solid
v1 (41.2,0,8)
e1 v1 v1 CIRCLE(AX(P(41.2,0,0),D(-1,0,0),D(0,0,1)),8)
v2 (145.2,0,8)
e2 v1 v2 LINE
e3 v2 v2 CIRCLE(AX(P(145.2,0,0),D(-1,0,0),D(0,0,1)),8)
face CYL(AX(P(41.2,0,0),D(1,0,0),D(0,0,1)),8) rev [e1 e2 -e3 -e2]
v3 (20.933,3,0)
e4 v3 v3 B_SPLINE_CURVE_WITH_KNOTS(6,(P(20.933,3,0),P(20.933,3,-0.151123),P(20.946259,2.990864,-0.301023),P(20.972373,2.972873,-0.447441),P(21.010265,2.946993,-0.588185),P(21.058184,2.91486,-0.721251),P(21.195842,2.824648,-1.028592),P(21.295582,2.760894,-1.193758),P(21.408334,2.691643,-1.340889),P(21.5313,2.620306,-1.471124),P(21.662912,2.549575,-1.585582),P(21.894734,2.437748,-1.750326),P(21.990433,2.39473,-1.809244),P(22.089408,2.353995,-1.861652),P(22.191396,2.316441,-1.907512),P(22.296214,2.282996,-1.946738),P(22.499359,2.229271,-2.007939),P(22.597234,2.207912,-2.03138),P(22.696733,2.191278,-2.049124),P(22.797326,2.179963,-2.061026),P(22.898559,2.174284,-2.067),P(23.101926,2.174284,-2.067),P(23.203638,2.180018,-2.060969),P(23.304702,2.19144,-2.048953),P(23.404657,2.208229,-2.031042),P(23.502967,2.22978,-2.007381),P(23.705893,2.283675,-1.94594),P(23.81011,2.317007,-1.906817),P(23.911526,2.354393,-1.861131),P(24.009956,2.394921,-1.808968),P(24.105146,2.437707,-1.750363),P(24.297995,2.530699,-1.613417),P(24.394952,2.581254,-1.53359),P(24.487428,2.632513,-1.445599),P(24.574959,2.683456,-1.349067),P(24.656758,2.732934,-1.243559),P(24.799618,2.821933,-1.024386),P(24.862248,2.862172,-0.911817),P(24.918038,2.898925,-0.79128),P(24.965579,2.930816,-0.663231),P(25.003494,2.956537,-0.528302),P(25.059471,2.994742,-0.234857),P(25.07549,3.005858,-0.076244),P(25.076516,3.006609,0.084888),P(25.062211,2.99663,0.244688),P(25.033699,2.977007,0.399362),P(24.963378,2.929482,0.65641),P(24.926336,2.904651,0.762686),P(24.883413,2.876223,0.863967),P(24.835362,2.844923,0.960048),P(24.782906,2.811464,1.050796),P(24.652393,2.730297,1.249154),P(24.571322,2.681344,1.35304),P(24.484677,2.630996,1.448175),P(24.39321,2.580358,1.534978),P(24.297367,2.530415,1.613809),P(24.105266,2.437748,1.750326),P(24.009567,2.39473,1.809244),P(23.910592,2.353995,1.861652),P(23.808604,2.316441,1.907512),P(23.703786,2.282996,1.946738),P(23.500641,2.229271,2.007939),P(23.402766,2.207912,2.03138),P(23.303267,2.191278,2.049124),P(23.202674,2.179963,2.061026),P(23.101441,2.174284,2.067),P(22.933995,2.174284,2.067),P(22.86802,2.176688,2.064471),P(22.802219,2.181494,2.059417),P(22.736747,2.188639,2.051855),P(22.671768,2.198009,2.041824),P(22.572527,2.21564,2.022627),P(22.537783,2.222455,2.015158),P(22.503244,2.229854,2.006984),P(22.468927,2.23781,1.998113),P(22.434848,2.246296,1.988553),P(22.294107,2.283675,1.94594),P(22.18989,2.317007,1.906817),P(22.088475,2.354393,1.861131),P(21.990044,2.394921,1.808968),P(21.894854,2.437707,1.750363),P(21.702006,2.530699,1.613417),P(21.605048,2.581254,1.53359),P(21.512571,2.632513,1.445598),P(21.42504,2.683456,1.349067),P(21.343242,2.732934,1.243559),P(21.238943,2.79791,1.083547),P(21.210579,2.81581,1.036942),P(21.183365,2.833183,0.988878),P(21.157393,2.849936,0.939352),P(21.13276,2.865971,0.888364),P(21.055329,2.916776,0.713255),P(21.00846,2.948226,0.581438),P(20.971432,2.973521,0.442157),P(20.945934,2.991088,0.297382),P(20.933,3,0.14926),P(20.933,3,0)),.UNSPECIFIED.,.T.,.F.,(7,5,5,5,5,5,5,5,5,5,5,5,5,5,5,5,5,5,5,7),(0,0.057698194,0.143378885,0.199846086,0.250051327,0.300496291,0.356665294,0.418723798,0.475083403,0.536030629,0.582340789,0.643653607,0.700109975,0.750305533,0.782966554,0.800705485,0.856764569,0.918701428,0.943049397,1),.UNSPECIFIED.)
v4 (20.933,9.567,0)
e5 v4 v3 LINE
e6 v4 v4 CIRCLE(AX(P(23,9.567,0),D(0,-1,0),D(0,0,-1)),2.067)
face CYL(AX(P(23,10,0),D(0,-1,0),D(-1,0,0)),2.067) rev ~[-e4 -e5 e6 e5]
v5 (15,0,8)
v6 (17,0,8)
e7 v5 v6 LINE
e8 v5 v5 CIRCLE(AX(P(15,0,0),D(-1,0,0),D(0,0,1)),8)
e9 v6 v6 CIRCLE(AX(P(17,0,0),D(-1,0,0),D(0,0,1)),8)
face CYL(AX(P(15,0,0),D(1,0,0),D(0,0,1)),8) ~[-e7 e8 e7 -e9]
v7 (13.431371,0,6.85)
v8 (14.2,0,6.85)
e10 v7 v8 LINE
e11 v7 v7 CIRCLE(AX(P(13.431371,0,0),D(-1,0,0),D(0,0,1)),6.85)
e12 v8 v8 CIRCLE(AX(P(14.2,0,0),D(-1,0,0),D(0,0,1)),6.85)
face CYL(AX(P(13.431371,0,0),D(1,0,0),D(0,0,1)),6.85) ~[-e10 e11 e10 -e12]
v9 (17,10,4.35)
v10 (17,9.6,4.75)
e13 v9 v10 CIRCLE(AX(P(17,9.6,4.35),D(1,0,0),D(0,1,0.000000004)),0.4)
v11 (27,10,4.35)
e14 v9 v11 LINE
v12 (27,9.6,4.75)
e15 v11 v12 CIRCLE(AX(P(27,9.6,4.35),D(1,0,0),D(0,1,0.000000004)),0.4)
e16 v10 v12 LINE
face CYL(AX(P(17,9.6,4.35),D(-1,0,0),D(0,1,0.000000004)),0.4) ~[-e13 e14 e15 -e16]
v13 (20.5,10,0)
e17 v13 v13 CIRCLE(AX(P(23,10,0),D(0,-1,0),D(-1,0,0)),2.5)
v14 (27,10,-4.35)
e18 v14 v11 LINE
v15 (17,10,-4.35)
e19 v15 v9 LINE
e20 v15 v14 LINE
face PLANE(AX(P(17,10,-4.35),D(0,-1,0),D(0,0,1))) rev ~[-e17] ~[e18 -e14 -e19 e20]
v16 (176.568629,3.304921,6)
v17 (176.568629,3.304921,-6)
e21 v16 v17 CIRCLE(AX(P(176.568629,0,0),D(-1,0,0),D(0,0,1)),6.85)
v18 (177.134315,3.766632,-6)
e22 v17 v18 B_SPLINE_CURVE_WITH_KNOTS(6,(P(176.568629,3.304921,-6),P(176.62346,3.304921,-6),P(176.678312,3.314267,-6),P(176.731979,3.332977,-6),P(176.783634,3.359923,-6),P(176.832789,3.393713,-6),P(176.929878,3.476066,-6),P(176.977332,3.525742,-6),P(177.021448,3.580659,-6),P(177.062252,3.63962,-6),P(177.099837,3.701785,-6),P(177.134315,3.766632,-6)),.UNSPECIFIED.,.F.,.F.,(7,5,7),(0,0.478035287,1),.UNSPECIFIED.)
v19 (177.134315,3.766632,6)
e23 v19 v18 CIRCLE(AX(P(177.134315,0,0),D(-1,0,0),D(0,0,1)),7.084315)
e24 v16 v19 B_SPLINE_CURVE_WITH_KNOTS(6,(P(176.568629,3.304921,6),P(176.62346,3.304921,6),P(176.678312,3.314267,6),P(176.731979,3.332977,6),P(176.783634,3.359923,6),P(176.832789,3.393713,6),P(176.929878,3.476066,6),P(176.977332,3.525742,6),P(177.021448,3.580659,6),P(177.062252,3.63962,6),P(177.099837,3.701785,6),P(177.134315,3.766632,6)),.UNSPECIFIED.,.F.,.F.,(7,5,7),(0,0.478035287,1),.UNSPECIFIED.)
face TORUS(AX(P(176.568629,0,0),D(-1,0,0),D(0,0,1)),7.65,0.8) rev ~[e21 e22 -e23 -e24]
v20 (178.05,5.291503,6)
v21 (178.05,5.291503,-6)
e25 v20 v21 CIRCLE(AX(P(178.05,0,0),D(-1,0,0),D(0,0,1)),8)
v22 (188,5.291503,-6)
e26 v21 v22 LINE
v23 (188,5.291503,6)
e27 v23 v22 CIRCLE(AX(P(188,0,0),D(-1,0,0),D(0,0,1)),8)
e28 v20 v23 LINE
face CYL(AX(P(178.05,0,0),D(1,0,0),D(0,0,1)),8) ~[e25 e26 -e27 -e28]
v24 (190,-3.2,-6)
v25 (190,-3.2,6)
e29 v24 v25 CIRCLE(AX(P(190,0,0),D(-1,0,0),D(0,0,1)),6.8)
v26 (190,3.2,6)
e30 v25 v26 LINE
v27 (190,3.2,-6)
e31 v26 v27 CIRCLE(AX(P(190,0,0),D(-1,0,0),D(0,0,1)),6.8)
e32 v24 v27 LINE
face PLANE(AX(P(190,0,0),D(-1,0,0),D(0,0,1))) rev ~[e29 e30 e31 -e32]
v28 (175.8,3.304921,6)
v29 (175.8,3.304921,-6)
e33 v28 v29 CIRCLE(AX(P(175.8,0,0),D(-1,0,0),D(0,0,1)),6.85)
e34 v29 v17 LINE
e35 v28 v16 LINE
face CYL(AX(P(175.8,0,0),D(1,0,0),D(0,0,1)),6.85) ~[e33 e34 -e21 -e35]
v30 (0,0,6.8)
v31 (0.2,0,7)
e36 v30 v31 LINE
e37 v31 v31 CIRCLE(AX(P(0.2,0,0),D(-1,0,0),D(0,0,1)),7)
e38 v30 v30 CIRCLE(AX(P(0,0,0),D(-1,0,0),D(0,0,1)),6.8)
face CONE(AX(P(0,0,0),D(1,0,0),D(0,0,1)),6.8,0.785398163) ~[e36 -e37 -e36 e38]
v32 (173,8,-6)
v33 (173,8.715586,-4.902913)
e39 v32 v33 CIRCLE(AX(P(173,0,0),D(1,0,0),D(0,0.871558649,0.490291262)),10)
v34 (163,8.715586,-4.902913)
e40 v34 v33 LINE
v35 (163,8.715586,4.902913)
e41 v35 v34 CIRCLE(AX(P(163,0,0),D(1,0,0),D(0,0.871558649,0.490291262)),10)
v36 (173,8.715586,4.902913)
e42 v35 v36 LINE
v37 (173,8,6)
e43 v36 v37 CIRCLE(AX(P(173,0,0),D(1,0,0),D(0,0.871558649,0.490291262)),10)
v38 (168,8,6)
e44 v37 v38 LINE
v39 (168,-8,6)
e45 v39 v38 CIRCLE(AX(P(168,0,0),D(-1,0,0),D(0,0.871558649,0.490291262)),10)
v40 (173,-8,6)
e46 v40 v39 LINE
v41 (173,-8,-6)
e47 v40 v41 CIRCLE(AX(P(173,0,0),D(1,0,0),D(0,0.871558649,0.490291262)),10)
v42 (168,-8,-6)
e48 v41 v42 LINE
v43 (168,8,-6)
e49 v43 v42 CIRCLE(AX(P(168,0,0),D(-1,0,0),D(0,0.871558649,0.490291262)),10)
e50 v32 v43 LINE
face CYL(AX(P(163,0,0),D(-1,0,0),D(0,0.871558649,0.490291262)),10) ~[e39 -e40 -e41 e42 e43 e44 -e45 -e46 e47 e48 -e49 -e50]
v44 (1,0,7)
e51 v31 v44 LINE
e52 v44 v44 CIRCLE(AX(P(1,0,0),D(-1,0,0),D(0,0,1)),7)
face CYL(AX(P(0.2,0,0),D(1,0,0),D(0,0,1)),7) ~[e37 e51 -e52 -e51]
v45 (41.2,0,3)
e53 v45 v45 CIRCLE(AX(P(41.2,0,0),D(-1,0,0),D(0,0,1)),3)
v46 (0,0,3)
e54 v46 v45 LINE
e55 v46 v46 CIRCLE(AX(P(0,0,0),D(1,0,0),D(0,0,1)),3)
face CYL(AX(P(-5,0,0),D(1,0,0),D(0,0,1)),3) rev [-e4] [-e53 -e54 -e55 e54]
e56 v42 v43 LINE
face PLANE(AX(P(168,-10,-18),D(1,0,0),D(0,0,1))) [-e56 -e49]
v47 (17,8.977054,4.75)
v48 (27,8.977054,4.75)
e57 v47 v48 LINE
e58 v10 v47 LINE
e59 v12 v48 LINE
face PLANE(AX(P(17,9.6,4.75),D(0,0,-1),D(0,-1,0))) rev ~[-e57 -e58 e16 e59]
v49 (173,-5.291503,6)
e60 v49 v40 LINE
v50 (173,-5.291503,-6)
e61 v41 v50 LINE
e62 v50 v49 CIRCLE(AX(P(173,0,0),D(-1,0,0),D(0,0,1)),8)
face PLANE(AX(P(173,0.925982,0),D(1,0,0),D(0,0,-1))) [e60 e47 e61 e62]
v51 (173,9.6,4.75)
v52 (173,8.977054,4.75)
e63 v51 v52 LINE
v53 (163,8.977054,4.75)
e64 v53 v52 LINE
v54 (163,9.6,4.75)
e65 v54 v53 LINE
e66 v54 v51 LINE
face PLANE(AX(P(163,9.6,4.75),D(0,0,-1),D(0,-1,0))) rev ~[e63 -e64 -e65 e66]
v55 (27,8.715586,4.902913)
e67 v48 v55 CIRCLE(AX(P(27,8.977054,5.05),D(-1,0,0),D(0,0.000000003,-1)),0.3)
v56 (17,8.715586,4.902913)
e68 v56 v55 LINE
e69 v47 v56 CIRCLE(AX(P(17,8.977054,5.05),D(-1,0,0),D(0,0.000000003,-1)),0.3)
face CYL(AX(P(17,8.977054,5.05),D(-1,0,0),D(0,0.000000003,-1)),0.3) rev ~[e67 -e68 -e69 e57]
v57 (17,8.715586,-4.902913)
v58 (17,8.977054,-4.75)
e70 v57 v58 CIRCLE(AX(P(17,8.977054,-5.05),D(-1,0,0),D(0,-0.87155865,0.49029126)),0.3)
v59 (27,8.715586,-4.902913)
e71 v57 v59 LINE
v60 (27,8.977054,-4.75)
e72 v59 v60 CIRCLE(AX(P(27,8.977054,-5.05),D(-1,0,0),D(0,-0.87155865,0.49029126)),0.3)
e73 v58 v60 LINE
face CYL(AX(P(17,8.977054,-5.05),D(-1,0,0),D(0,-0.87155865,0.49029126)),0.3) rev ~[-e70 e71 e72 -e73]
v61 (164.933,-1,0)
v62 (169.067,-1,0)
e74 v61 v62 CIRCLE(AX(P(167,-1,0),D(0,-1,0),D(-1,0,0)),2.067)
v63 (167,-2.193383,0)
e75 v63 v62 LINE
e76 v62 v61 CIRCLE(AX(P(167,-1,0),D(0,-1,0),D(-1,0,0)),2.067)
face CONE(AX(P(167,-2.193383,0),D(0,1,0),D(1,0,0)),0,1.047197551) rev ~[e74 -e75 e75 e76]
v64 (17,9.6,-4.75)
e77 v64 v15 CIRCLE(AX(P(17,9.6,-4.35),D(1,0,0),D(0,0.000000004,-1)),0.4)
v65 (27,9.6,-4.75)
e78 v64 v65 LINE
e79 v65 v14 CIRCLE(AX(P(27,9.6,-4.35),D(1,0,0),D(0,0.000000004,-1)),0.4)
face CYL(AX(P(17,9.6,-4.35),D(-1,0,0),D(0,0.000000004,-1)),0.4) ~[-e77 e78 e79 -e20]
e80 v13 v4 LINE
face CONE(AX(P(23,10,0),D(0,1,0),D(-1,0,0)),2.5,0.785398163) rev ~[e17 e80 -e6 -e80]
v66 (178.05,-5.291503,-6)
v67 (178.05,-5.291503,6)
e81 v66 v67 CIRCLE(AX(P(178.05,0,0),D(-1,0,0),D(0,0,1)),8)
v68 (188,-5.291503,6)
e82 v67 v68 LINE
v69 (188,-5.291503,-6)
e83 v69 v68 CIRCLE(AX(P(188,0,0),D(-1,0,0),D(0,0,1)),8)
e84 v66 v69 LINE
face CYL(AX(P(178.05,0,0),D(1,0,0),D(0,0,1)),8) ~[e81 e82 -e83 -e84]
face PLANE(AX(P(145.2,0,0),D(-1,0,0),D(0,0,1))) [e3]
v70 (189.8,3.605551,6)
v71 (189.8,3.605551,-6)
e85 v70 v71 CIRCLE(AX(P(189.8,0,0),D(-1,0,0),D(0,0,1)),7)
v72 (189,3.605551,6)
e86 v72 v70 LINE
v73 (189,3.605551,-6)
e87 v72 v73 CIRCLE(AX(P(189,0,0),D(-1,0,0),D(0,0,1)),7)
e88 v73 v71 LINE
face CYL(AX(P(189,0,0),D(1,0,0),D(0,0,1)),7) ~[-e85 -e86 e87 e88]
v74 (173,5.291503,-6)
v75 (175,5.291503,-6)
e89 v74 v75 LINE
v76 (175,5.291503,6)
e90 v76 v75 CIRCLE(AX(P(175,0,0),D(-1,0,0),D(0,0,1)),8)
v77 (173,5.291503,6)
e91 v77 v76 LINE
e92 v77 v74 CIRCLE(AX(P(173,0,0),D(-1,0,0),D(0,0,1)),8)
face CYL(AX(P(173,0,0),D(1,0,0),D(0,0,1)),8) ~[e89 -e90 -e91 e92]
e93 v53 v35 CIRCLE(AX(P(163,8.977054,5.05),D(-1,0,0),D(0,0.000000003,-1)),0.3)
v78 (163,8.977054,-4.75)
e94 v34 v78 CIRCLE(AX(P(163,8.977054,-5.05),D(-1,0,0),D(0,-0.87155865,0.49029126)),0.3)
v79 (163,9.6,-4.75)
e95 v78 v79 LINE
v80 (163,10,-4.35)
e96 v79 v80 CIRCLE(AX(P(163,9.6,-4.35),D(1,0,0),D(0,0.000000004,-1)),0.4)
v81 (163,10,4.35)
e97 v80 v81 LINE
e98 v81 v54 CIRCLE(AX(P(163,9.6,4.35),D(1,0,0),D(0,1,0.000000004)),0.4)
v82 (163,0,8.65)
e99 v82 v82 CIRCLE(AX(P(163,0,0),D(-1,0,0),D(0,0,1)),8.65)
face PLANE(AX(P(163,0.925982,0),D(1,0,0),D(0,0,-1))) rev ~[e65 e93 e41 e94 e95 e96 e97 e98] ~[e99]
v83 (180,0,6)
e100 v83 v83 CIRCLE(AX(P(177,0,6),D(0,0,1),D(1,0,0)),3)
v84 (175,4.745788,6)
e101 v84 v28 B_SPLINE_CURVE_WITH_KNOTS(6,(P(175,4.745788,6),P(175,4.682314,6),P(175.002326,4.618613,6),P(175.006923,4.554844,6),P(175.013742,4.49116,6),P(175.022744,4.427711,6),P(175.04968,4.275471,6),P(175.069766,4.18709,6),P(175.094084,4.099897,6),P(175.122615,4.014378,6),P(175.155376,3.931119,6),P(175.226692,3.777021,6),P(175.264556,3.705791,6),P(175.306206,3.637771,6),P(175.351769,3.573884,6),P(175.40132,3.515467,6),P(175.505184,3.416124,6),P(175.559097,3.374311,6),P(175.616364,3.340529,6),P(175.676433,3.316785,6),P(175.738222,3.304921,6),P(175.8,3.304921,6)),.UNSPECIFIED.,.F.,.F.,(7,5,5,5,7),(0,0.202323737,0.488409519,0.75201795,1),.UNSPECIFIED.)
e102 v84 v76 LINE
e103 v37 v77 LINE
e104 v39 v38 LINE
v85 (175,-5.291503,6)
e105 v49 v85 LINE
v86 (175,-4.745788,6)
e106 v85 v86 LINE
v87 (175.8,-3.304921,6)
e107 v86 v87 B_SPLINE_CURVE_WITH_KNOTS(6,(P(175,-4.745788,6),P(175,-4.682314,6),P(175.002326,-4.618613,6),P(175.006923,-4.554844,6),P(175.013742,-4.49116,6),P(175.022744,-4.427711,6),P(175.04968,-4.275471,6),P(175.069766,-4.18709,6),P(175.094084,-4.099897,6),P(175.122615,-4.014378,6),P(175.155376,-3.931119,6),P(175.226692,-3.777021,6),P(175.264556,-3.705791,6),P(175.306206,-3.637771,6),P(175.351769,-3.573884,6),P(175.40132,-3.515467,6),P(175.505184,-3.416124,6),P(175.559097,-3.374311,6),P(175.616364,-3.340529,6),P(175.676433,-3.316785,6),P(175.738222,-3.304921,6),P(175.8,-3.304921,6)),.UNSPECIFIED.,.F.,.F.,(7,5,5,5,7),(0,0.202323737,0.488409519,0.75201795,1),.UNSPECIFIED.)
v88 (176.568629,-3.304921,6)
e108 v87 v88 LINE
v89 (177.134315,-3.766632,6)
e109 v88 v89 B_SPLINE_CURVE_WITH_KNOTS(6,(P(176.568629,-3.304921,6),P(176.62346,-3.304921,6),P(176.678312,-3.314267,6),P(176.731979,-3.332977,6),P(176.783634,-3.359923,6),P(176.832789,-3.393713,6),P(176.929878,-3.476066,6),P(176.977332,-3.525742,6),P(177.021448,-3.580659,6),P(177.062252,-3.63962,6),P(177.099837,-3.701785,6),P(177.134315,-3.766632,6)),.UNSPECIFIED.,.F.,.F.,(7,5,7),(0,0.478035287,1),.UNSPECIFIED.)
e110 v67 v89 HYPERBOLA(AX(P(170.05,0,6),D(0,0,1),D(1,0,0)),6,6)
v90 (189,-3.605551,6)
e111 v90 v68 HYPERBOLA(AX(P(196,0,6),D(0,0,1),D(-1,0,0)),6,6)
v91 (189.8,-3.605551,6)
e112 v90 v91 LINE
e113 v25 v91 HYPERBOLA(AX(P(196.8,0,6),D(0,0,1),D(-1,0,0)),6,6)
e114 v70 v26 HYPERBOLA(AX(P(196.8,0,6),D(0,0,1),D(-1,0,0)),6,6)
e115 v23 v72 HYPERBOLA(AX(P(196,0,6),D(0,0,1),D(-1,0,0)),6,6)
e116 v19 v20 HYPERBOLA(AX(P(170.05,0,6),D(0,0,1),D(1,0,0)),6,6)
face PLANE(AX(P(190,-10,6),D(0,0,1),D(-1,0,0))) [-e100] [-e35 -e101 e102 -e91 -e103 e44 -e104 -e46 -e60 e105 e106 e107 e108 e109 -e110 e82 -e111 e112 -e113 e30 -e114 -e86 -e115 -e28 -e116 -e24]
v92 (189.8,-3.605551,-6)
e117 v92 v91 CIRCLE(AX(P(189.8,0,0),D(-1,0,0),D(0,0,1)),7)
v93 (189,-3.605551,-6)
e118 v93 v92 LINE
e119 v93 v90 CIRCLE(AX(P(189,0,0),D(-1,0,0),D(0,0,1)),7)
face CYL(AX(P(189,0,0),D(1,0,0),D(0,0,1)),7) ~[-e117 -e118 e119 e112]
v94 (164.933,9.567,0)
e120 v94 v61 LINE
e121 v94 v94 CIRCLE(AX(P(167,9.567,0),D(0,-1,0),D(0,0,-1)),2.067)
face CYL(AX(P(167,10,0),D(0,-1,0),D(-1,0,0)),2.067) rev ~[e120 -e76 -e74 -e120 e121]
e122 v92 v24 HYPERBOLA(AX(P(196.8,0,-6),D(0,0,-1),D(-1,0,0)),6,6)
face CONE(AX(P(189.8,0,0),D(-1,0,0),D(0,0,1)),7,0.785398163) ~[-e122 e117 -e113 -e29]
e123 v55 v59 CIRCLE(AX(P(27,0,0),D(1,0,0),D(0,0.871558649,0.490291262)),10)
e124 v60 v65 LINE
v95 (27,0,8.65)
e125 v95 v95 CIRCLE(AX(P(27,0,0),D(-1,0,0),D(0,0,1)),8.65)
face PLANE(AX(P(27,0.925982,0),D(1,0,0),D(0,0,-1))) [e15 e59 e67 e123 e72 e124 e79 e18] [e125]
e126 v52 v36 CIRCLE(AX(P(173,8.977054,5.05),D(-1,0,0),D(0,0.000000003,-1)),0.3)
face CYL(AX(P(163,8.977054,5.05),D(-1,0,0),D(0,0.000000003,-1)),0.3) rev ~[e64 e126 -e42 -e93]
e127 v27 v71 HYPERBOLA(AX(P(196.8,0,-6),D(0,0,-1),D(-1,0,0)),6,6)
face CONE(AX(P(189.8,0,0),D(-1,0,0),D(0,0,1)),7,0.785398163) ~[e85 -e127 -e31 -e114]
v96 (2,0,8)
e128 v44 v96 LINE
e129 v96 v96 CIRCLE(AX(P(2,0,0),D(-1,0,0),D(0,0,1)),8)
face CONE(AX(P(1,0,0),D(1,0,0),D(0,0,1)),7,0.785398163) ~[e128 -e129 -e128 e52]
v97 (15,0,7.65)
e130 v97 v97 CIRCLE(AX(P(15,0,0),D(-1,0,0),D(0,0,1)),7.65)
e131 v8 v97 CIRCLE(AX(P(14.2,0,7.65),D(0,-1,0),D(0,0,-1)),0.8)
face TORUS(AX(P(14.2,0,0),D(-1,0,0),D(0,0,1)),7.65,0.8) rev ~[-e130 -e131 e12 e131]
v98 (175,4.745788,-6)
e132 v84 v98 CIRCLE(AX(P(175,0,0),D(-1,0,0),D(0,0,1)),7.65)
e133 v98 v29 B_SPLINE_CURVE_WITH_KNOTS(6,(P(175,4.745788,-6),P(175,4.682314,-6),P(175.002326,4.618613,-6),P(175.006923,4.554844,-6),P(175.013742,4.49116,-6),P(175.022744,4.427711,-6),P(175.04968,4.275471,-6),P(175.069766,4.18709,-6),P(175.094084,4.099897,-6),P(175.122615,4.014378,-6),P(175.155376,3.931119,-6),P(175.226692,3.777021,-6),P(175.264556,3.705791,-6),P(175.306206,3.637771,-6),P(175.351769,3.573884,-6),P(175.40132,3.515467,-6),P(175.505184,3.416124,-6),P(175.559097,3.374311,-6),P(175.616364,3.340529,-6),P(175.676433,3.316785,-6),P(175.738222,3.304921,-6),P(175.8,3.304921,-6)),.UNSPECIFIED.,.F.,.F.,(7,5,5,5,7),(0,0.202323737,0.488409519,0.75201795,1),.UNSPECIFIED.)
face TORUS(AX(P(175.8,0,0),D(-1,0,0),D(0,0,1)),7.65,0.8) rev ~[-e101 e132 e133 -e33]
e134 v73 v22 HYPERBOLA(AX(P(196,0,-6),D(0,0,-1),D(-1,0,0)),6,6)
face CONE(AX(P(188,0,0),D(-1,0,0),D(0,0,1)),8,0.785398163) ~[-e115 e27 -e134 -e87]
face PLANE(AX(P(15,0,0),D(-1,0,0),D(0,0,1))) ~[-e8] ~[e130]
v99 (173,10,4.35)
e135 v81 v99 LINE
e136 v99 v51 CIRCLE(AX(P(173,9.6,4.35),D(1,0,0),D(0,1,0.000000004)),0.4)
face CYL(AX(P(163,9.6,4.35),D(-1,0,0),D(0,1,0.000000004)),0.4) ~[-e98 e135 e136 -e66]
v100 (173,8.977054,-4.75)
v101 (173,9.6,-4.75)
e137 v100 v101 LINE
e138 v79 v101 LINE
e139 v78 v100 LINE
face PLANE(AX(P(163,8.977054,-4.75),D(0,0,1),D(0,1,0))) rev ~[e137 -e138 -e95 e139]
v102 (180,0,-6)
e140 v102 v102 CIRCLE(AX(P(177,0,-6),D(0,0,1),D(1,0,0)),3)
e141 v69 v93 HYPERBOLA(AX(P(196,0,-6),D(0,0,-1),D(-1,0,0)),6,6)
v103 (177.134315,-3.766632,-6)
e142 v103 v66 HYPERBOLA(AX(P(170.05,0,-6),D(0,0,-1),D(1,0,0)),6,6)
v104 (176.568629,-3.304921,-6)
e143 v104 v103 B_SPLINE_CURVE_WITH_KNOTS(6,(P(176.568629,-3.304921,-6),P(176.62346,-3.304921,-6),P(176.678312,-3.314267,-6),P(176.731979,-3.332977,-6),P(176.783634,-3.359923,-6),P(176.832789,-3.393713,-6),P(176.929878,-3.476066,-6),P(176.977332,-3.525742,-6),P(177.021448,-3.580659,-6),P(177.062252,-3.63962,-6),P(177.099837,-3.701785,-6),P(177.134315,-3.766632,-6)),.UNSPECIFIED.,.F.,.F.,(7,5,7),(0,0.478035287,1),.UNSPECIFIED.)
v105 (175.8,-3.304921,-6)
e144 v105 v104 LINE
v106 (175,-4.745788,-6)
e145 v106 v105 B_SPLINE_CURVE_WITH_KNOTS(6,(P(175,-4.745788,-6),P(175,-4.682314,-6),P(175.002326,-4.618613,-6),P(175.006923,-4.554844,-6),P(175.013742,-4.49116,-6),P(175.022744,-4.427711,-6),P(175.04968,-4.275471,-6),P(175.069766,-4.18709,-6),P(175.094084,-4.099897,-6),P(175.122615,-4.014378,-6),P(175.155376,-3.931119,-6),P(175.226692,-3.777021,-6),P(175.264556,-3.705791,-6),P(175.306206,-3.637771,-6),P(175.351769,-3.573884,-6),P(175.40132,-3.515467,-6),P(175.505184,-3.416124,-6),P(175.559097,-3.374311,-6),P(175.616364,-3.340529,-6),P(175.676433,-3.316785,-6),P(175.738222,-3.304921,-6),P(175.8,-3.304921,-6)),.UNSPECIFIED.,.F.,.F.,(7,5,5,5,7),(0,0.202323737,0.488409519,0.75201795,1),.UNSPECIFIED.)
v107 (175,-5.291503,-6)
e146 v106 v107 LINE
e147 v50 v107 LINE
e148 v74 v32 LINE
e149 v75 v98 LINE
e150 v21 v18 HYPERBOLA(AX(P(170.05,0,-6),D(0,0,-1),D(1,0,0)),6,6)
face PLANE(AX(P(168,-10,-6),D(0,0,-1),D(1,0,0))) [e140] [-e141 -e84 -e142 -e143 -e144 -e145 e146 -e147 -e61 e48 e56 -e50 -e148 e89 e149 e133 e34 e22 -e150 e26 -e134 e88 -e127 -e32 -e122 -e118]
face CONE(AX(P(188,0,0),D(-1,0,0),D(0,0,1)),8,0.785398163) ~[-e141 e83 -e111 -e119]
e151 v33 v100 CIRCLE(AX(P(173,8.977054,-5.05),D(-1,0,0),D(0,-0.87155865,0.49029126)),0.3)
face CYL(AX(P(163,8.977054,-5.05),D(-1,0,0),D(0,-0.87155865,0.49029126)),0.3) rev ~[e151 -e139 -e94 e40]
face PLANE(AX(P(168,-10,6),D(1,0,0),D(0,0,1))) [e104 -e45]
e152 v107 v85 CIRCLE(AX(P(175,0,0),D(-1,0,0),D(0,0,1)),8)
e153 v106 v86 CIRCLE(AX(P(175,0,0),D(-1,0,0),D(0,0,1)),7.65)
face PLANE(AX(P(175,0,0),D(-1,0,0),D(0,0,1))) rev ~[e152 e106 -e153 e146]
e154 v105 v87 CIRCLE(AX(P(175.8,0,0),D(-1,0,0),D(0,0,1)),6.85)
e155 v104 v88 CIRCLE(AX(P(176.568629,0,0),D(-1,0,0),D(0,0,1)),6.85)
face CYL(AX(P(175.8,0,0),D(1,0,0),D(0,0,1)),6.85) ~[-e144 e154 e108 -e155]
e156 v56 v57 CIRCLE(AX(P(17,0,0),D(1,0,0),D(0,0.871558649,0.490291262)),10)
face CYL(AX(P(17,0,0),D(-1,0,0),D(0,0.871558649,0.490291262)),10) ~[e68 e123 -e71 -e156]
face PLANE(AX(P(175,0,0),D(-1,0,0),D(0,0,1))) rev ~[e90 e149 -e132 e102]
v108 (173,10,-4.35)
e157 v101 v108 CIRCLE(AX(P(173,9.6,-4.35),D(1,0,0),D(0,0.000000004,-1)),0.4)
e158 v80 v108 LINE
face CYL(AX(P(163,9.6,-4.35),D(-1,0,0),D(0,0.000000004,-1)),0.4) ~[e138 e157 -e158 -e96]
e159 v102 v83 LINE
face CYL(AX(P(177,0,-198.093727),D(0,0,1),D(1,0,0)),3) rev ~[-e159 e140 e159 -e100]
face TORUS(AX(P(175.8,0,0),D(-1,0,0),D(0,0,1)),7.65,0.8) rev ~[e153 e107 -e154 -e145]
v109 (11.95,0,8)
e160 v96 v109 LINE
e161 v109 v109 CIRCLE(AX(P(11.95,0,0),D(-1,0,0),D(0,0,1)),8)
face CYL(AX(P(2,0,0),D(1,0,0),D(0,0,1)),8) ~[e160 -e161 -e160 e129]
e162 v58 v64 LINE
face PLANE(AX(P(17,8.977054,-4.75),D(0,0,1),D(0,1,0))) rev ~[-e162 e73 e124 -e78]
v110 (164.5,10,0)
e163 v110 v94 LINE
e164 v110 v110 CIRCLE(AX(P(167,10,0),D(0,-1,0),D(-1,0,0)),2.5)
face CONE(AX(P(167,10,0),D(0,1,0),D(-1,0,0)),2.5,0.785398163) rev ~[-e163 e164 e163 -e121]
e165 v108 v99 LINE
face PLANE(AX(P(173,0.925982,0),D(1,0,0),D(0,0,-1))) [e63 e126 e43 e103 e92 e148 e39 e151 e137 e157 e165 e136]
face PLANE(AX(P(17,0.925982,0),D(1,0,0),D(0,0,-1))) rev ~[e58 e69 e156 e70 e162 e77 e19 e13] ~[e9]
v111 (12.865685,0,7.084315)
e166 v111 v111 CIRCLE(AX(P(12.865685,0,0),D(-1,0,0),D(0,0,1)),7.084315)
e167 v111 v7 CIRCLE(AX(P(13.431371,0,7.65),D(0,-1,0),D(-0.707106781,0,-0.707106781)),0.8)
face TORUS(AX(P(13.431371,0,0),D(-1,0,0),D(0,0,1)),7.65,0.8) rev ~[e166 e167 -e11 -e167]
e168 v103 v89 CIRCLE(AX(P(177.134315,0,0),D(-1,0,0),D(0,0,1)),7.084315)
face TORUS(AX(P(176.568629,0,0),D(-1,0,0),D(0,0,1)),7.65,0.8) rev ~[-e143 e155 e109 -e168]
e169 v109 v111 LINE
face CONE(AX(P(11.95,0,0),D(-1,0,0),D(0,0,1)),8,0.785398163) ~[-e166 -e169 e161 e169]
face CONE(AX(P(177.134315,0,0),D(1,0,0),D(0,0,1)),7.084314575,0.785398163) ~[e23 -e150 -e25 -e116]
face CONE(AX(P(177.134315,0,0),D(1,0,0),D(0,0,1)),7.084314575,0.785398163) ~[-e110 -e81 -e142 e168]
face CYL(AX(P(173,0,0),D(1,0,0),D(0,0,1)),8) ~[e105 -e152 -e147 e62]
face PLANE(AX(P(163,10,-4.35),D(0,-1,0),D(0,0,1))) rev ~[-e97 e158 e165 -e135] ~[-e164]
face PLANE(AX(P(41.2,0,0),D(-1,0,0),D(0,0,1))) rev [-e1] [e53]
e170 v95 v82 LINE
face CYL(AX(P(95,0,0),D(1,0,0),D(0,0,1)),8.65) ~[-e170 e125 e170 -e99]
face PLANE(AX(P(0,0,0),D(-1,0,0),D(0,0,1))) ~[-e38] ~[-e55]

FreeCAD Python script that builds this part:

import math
import FreeCAD as App
import Part
import Sketcher
Q = App.Units.Quantity

doc = App.newDocument("Part")
body = doc.addObject("PartDesign::Body", "Body")

sketch1 = body.newObject("Sketcher::SketchObject", "Sketch")
sketch1.AttachmentSupport = (doc.getObject("XY_Plane"), [""])
sketch1.MapMode = "FlatFace"
sketch1.addGeometry(Part.LineSegment(App.Vector(0, 6.8, 0), App.Vector(0, 0, 0)), False)
sketch1.addGeometry(Part.LineSegment(App.Vector(0, 0, 0), App.Vector(17, 0, 0)), False)
sketch1.addGeometry(Part.LineSegment(App.Vector(17, 0, 0), App.Vector(17, 8, 0)), False)
sketch1.addGeometry(Part.LineSegment(App.Vector(17, 8, 0), App.Vector(15, 8, 0)), False)
sketch1.addGeometry(Part.LineSegment(App.Vector(15, 8, 0), App.Vector(15, 7.65, 0)), False)
sketch1.addGeometry(Part.ArcOfCircle(Part.Circle(App.Vector(14.2, 7.65, 0), App.Vector(0, 0, 1), 0.8), math.radians(-90), math.radians(0)), False)
sketch1.addGeometry(Part.LineSegment(App.Vector(14.2, 6.85, 0), App.Vector(13.431371, 6.85, 0)), False)
sketch1.addGeometry(Part.ArcOfCircle(Part.Circle(App.Vector(13.431371, 7.65, 0), App.Vector(0, 0, 1), 0.8), math.radians(-135), math.radians(-90)), False)
sketch1.addGeometry(Part.LineSegment(App.Vector(12.865685, 7.084315, 0), App.Vector(11.95, 8, 0)), False)
sketch1.addGeometry(Part.LineSegment(App.Vector(11.95, 8, 0), App.Vector(2, 8, 0)), False)
sketch1.addGeometry(Part.LineSegment(App.Vector(2, 8, 0), App.Vector(1, 7, 0)), False)
sketch1.addGeometry(Part.LineSegment(App.Vector(1, 7, 0), App.Vector(0.2, 7, 0)), False)
sketch1.addGeometry(Part.LineSegment(App.Vector(0.2, 7, 0), App.Vector(0, 6.8, 0)), False)
sketch1.addConstraint(Sketcher.Constraint("Coincident", 0, 2, 1, 1))
sketch1.addConstraint(Sketcher.Constraint("Coincident", 1, 2, 2, 1))
sketch1.addConstraint(Sketcher.Constraint("Coincident", 2, 2, 3, 1))
sketch1.addConstraint(Sketcher.Constraint("Coincident", 3, 2, 4, 1))
sketch1.addConstraint(Sketcher.Constraint("Tangent", 4, 2, 5, 2))
sketch1.addConstraint(Sketcher.Constraint("Tangent", 5, 1, 6, 1))
sketch1.addConstraint(Sketcher.Constraint("Tangent", 6, 2, 7, 2))
sketch1.addConstraint(Sketcher.Constraint("Tangent", 7, 1, 8, 1))
sketch1.addConstraint(Sketcher.Constraint("Coincident", 8, 2, 9, 1))
sketch1.addConstraint(Sketcher.Constraint("Coincident", 9, 2, 10, 1))
sketch1.addConstraint(Sketcher.Constraint("Coincident", 10, 2, 11, 1))
sketch1.addConstraint(Sketcher.Constraint("Coincident", 11, 2, 12, 1))
sketch1.addConstraint(Sketcher.Constraint("Coincident", 12, 2, 0, 1))
sketch1.addConstraint(Sketcher.Constraint("Vertical", 0))
sketch1.addConstraint(Sketcher.Constraint("Horizontal", 1))
sketch1.addConstraint(Sketcher.Constraint("Vertical", 2))
sketch1.addConstraint(Sketcher.Constraint("Horizontal", 3))
sketch1.addConstraint(Sketcher.Constraint("Vertical", 4))
sketch1.addConstraint(Sketcher.Constraint("Horizontal", 6))
sketch1.addConstraint(Sketcher.Constraint("Horizontal", 9))
sketch1.addConstraint(Sketcher.Constraint("Horizontal", 11))
sketch1.addConstraint(Sketcher.Constraint("Coincident", 0, 2, -1, 1))
sketch1.addConstraint(Sketcher.Constraint("Equal", 5, 7))
sketch1.addConstraint(Sketcher.Constraint("Perpendicular", 8, 10))
sketch1.addConstraint(Sketcher.Constraint("Parallel", 10, 12))
sketch1.addConstraint(Sketcher.Constraint("Horizontal", 3, 2, 8, 2))
sketch1.addConstraint(Sketcher.Constraint("Radius", 5, 0.8))
sketch1.addConstraint(Sketcher.Constraint("DistanceX", 1, 1, 1, 2, 17.0))
sketch1.addConstraint(Sketcher.Constraint("DistanceX", 3, 2, 3, 1, 2.0))
sketch1.addConstraint(Sketcher.Constraint("DistanceY", 2, 1, 2, 2, 8.0))
sketch1.addConstraint(Sketcher.Constraint("Angle", 8, Q("135 deg")))
sketch1.addConstraint(Sketcher.Constraint("DistanceX", 11, 2, 11, 1, 0.8))
sketch1.addConstraint(Sketcher.Constraint("DistanceY", 0, 2, 0, 1, 6.8))
sketch1.addConstraint(Sketcher.Constraint("DistanceX", -1, 1, 10, 2, 1.0))
sketch1.addConstraint(Sketcher.Constraint("DistanceX", 9, 2, 9, 1, 9.95))
sketch1.addConstraint(Sketcher.Constraint("DistanceY", 4, 2, 4, 1, 0.35))
revolution = body.newObject("PartDesign::Revolution", "Revolution")
revolution.Profile = sketch1
revolution.ReferenceAxis = (sketch1, ["H_Axis"])
revolution.Angle = 360

sketch2 = body.newObject("Sketcher::SketchObject", "Sketch001")
sketch2.AttachmentSupport = (doc.getObject("YZ_Plane"), [""])
sketch2.MapMode = "FlatFace"
sketch2.AttachmentOffset = App.Placement(App.Vector(0, 0, 17), App.Rotation())
sketch2.addGeometry(Part.LineSegment(App.Vector(8.977054, -4.75, 0), App.Vector(9.6, -4.75, 0)), False)
sketch2.addGeometry(Part.ArcOfCircle(Part.Circle(App.Vector(9.6, -4.35, 0), App.Vector(0, 0, 1), 0.4), math.radians(-90), math.radians(0)), False)
sketch2.addGeometry(Part.LineSegment(App.Vector(10, -4.35, 0), App.Vector(10, 4.35, 0)), False)
sketch2.addGeometry(Part.ArcOfCircle(Part.Circle(App.Vector(9.6, 4.35, 0), App.Vector(0, 0, 1), 0.4), math.radians(0), math.radians(90)), False)
sketch2.addGeometry(Part.LineSegment(App.Vector(9.6, 4.75, 0), App.Vector(8.977054, 4.75, 0)), False)
sketch2.addGeometry(Part.ArcOfCircle(Part.Circle(App.Vector(8.977054, 5.05, 0), App.Vector(0, 0, 1), 0.3), math.radians(-150.640273), math.radians(-90)), False)
sketch2.addGeometry(Part.ArcOfCircle(Part.Circle(App.Vector(0, 0, 0), App.Vector(0, 0, 1), 10), math.radians(29.359727), math.radians(330.640273)), False)
sketch2.addGeometry(Part.ArcOfCircle(Part.Circle(App.Vector(8.977054, -5.05, 0), App.Vector(0, 0, 1), 0.3), math.radians(90), math.radians(150.640273)), False)
sketch2.addConstraint(Sketcher.Constraint("Tangent", 0, 2, 1, 1))
sketch2.addConstraint(Sketcher.Constraint("Tangent", 1, 2, 2, 1))
sketch2.addConstraint(Sketcher.Constraint("Tangent", 2, 2, 3, 1))
sketch2.addConstraint(Sketcher.Constraint("Tangent", 3, 2, 4, 1))
sketch2.addConstraint(Sketcher.Constraint("Tangent", 4, 2, 5, 2))
sketch2.addConstraint(Sketcher.Constraint("Tangent", 5, 1, 6, 1))
sketch2.addConstraint(Sketcher.Constraint("Tangent", 6, 2, 7, 2))
sketch2.addConstraint(Sketcher.Constraint("Tangent", 7, 1, 0, 1))
sketch2.addConstraint(Sketcher.Constraint("Horizontal", 0))
sketch2.addConstraint(Sketcher.Constraint("Vertical", 2))
sketch2.addConstraint(Sketcher.Constraint("Horizontal", 4))
sketch2.addConstraint(Sketcher.Constraint("Coincident", 6, 3, -1, 1))
sketch2.addConstraint(Sketcher.Constraint("Equal", 1, 3))
sketch2.addConstraint(Sketcher.Constraint("Equal", 5, 7))
sketch2.addConstraint(Sketcher.Constraint("Vertical", 5, 3, 7, 3))
sketch2.addConstraint(Sketcher.Constraint("Radius", 6, 10.0))
sketch2.addConstraint(Sketcher.Constraint("Radius", 1, 0.4))
sketch2.addConstraint(Sketcher.Constraint("Radius", 5, 0.3))
sketch2.addConstraint(Sketcher.Constraint("DistanceY", 2, 1, 2, 2, 8.7))
sketch2.addConstraint(Sketcher.Constraint("DistanceX", -1, 1, 1, 2, 10.0))
pad1 = body.newObject("PartDesign::Pad", "Pad")
pad1.Profile = sketch2
pad1.Length = 10

sketch3 = body.newObject("Sketcher::SketchObject", "Sketch002")
sketch3.AttachmentSupport = (doc.getObject("XY_Plane"), [""])
sketch3.MapMode = "FlatFace"
sketch3.addGeometry(Part.LineSegment(App.Vector(27, 8.65, 0), App.Vector(27, 0, 0)), False)
sketch3.addGeometry(Part.LineSegment(App.Vector(27, 0, 0), App.Vector(163, 0, 0)), False)
sketch3.addGeometry(Part.LineSegment(App.Vector(163, 0, 0), App.Vector(163, 8.65, 0)), False)
sketch3.addGeometry(Part.LineSegment(App.Vector(163, 8.65, 0), App.Vector(27, 8.65, 0)), False)
sketch3.addConstraint(Sketcher.Constraint("Coincident", 0, 2, 1, 1))
sketch3.addConstraint(Sketcher.Constraint("Coincident", 1, 2, 2, 1))
sketch3.addConstraint(Sketcher.Constraint("Coincident", 2, 2, 3, 1))
sketch3.addConstraint(Sketcher.Constraint("Coincident", 3, 2, 0, 1))
sketch3.addConstraint(Sketcher.Constraint("Vertical", 0))
sketch3.addConstraint(Sketcher.Constraint("Horizontal", 1))
sketch3.addConstraint(Sketcher.Constraint("Vertical", 2))
sketch3.addConstraint(Sketcher.Constraint("Horizontal", 3))
sketch3.addConstraint(Sketcher.Constraint("PointOnObject", 0, 2, -1))
sketch3.addConstraint(Sketcher.Constraint("DistanceX", 1, 1, 1, 2, 136.0))
sketch3.addConstraint(Sketcher.Constraint("DistanceX", -1, 1, 0, 2, 27.0))
sketch3.addConstraint(Sketcher.Constraint("DistanceY", 0, 2, 0, 1, 8.65))
revolution2 = body.newObject("PartDesign::Revolution", "Revolution001")
revolution2.Profile = sketch3
revolution2.ReferenceAxis = (sketch3, ["H_Axis"])
revolution2.Angle = 360

sketch4 = body.newObject("Sketcher::SketchObject", "Sketch003")
sketch4.AttachmentSupport = (doc.getObject("YZ_Plane"), [""])
sketch4.MapMode = "FlatFace"
sketch4.AttachmentOffset = App.Placement(App.Vector(0, 0, 163), App.Rotation())
sketch4.addGeometry(Part.LineSegment(App.Vector(8.977054, -4.75, 0), App.Vector(9.6, -4.75, 0)), False)
sketch4.addGeometry(Part.ArcOfCircle(Part.Circle(App.Vector(9.6, -4.35, 0), App.Vector(0, 0, 1), 0.4), math.radians(-90), math.radians(0)), False)
sketch4.addGeometry(Part.LineSegment(App.Vector(10, -4.35, 0), App.Vector(10, 4.35, 0)), False)
sketch4.addGeometry(Part.ArcOfCircle(Part.Circle(App.Vector(9.6, 4.35, 0), App.Vector(0, 0, 1), 0.4), math.radians(0), math.radians(90)), False)
sketch4.addGeometry(Part.LineSegment(App.Vector(9.6, 4.75, 0), App.Vector(8.977054, 4.75, 0)), False)
sketch4.addGeometry(Part.ArcOfCircle(Part.Circle(App.Vector(8.977054, 5.05, 0), App.Vector(0, 0, 1), 0.3), math.radians(-150.640273), math.radians(-90)), False)
sketch4.addGeometry(Part.ArcOfCircle(Part.Circle(App.Vector(0, 0, 0), App.Vector(0, 0, 1), 10), math.radians(29.359727), math.radians(330.640273)), False)
sketch4.addGeometry(Part.ArcOfCircle(Part.Circle(App.Vector(8.977054, -5.05, 0), App.Vector(0, 0, 1), 0.3), math.radians(90), math.radians(150.640273)), False)
sketch4.addConstraint(Sketcher.Constraint("Tangent", 0, 2, 1, 1))
sketch4.addConstraint(Sketcher.Constraint("Tangent", 1, 2, 2, 1))
sketch4.addConstraint(Sketcher.Constraint("Tangent", 2, 2, 3, 1))
sketch4.addConstraint(Sketcher.Constraint("Tangent", 3, 2, 4, 1))
sketch4.addConstraint(Sketcher.Constraint("Tangent", 4, 2, 5, 2))
sketch4.addConstraint(Sketcher.Constraint("Tangent", 5, 1, 6, 1))
sketch4.addConstraint(Sketcher.Constraint("Tangent", 6, 2, 7, 2))
sketch4.addConstraint(Sketcher.Constraint("Tangent", 7, 1, 0, 1))
sketch4.addConstraint(Sketcher.Constraint("Horizontal", 0))
sketch4.addConstraint(Sketcher.Constraint("Vertical", 2))
sketch4.addConstraint(Sketcher.Constraint("Horizontal", 4))
sketch4.addConstraint(Sketcher.Constraint("Coincident", 6, 3, -1, 1))
sketch4.addConstraint(Sketcher.Constraint("Equal", 1, 3))
sketch4.addConstraint(Sketcher.Constraint("Equal", 5, 7))
sketch4.addConstraint(Sketcher.Constraint("Vertical", 5, 3, 7, 3))
sketch4.addConstraint(Sketcher.Constraint("Radius", 6, 10.0))
sketch4.addConstraint(Sketcher.Constraint("Radius", 1, 0.4))
sketch4.addConstraint(Sketcher.Constraint("Radius", 5, 0.3))
sketch4.addConstraint(Sketcher.Constraint("DistanceY", 2, 1, 2, 2, 8.7))
sketch4.addConstraint(Sketcher.Constraint("DistanceX", -1, 1, 1, 2, 10.0))
pad2 = body.newObject("PartDesign::Pad", "Pad001")
pad2.Profile = sketch4
pad2.Length = 10

sketch5 = body.newObject("Sketcher::SketchObject", "Sketch004")
sketch5.AttachmentSupport = (doc.getObject("XY_Plane"), [""])
sketch5.MapMode = "FlatFace"
sketch5.addGeometry(Part.LineSegment(App.Vector(173, 8, 0), App.Vector(173, 0, 0)), False)
sketch5.addGeometry(Part.LineSegment(App.Vector(173, 0, 0), App.Vector(190, 0, 0)), False)
sketch5.addGeometry(Part.LineSegment(App.Vector(190, 0, 0), App.Vector(190, 6.8, 0)), False)
sketch5.addGeometry(Part.LineSegment(App.Vector(190, 6.8, 0), App.Vector(189.8, 7, 0)), False)
sketch5.addGeometry(Part.LineSegment(App.Vector(189.8, 7, 0), App.Vector(189, 7, 0)), False)
sketch5.addGeometry(Part.LineSegment(App.Vector(189, 7, 0), App.Vector(188, 8, 0)), False)
sketch5.addGeometry(Part.LineSegment(App.Vector(188, 8, 0), App.Vector(178.05, 8, 0)), False)
sketch5.addGeometry(Part.LineSegment(App.Vector(178.05, 8, 0), App.Vector(177.134315, 7.084315, 0)), False)
sketch5.addGeometry(Part.ArcOfCircle(Part.Circle(App.Vector(176.568629, 7.65, 0), App.Vector(0, 0, 1), 0.8), math.radians(-90), math.radians(-45)), False)
sketch5.addGeometry(Part.LineSegment(App.Vector(176.568629, 6.85, 0), App.Vector(175.8, 6.85, 0)), False)
sketch5.addGeometry(Part.ArcOfCircle(Part.Circle(App.Vector(175.8, 7.65, 0), App.Vector(0, 0, 1), 0.8), math.radians(180), math.radians(270)), False)
sketch5.addGeometry(Part.LineSegment(App.Vector(175, 7.65, 0), App.Vector(175, 8, 0)), False)
sketch5.addGeometry(Part.LineSegment(App.Vector(175, 8, 0), App.Vector(173, 8, 0)), False)
sketch5.addConstraint(Sketcher.Constraint("Coincident", 0, 2, 1, 1))
sketch5.addConstraint(Sketcher.Constraint("Coincident", 1, 2, 2, 1))
sketch5.addConstraint(Sketcher.Constraint("Coincident", 2, 2, 3, 1))
sketch5.addConstraint(Sketcher.Constraint("Coincident", 3, 2, 4, 1))
sketch5.addConstraint(Sketcher.Constraint("Coincident", 4, 2, 5, 1))
sketch5.addConstraint(Sketcher.Constraint("Coincident", 5, 2, 6, 1))
sketch5.addConstraint(Sketcher.Constraint("Coincident", 6, 2, 7, 1))
sketch5.addConstraint(Sketcher.Constraint("Tangent", 7, 2, 8, 2))
sketch5.addConstraint(Sketcher.Constraint("Tangent", 8, 1, 9, 1))
sketch5.addConstraint(Sketcher.Constraint("Tangent", 9, 2, 10, 2))
sketch5.addConstraint(Sketcher.Constraint("Tangent", 10, 1, 11, 1))
sketch5.addConstraint(Sketcher.Constraint("Coincident", 11, 2, 12, 1))
sketch5.addConstraint(Sketcher.Constraint("Coincident", 12, 2, 0, 1))
sketch5.addConstraint(Sketcher.Constraint("Vertical", 0))
sketch5.addConstraint(Sketcher.Constraint("Horizontal", 1))
sketch5.addConstraint(Sketcher.Constraint("Vertical", 2))
sketch5.addConstraint(Sketcher.Constraint("Horizontal", 4))
sketch5.addConstraint(Sketcher.Constraint("Horizontal", 6))
sketch5.addConstraint(Sketcher.Constraint("Horizontal", 9))
sketch5.addConstraint(Sketcher.Constraint("Vertical", 11))
sketch5.addConstraint(Sketcher.Constraint("Horizontal", 12))
sketch5.addConstraint(Sketcher.Constraint("Equal", 8, 10))
sketch5.addConstraint(Sketcher.Constraint("PointOnObject", 0, 2, -1))
sketch5.addConstraint(Sketcher.Constraint("Parallel", 3, 5))
sketch5.addConstraint(Sketcher.Constraint("Perpendicular", 5, 7))
sketch5.addConstraint(Sketcher.Constraint("Horizontal", 6, 2, 11, 2))
sketch5.addConstraint(Sketcher.Constraint("Radius", 8, 0.8))
sketch5.addConstraint(Sketcher.Constraint("DistanceX", 1, 1, 1, 2, 17.0))
sketch5.addConstraint(Sketcher.Constraint("DistanceX", 12, 2, 12, 1, 2.0))
sketch5.addConstraint(Sketcher.Constraint("DistanceY", 0, 2, 0, 1, 8.0))
sketch5.addConstraint(Sketcher.Constraint("Angle", 3, Q("135 deg")))
sketch5.addConstraint(Sketcher.Constraint("DistanceX", 4, 2, 4, 1, 0.8))
sketch5.addConstraint(Sketcher.Constraint("DistanceY", 2, 1, 2, 2, 6.8))
sketch5.addConstraint(Sketcher.Constraint("DistanceX", -1, 1, 0, 2, 173.0))
sketch5.addConstraint(Sketcher.Constraint("DistanceY", -1, 1, 3, 2, 7.0))
sketch5.addConstraint(Sketcher.Constraint("DistanceX", 6, 2, 6, 1, 9.95))
sketch5.addConstraint(Sketcher.Constraint("DistanceY", 11, 1, 11, 2, 0.35))
revolution3 = body.newObject("PartDesign::Revolution", "Revolution002")
revolution3.Profile = sketch5
revolution3.ReferenceAxis = (sketch5, ["H_Axis"])
revolution3.Angle = 360

sketch6 = body.newObject("Sketcher::SketchObject", "Sketch005")
sketch6.AttachmentSupport = (doc.getObject("XZ_Plane"), [""])
sketch6.MapMode = "FlatFace"
sketch6.addGeometry(Part.LineSegment(App.Vector(168, -18, 0), App.Vector(168, -6, 0)), False)
sketch6.addGeometry(Part.LineSegment(App.Vector(168, -6, 0), App.Vector(190, -6, 0)), False)
sketch6.addGeometry(Part.LineSegment(App.Vector(190, -6, 0), App.Vector(190, 6, 0)), False)
sketch6.addGeometry(Part.LineSegment(App.Vector(190, 6, 0), App.Vector(168, 6, 0)), False)
sketch6.addGeometry(Part.LineSegment(App.Vector(168, 6, 0), App.Vector(168, 18, 0)), False)
sketch6.addGeometry(Part.LineSegment(App.Vector(168, 18, 0), App.Vector(202, 18, 0)), False)
sketch6.addGeometry(Part.LineSegment(App.Vector(202, 18, 0), App.Vector(202, -18, 0)), False)
sketch6.addGeometry(Part.LineSegment(App.Vector(202, -18, 0), App.Vector(168, -18, 0)), False)
sketch6.addConstraint(Sketcher.Constraint("Coincident", 0, 2, 1, 1))
sketch6.addConstraint(Sketcher.Constraint("Coincident", 1, 2, 2, 1))
sketch6.addConstraint(Sketcher.Constraint("Coincident", 2, 2, 3, 1))
sketch6.addConstraint(Sketcher.Constraint("Coincident", 3, 2, 4, 1))
sketch6.addConstraint(Sketcher.Constraint("Coincident", 4, 2, 5, 1))
sketch6.addConstraint(Sketcher.Constraint("Coincident", 5, 2, 6, 1))
sketch6.addConstraint(Sketcher.Constraint("Coincident", 6, 2, 7, 1))
sketch6.addConstraint(Sketcher.Constraint("Coincident", 7, 2, 0, 1))
sketch6.addConstraint(Sketcher.Constraint("Vertical", 0))
sketch6.addConstraint(Sketcher.Constraint("Horizontal", 1))
sketch6.addConstraint(Sketcher.Constraint("Vertical", 2))
sketch6.addConstraint(Sketcher.Constraint("Horizontal", 3))
sketch6.addConstraint(Sketcher.Constraint("Vertical", 4))
sketch6.addConstraint(Sketcher.Constraint("Horizontal", 5))
sketch6.addConstraint(Sketcher.Constraint("Vertical", 6))
sketch6.addConstraint(Sketcher.Constraint("Horizontal", 7))
sketch6.addConstraint(Sketcher.Constraint("Symmetric", 0, 2, 3, 2, -1))
sketch6.addConstraint(Sketcher.Constraint("Equal", 0, 2))
sketch6.addConstraint(Sketcher.Constraint("Equal", 2, 4))
sketch6.addConstraint(Sketcher.Constraint("DistanceX", 1, 1, 1, 2, 22.0))
sketch6.addConstraint(Sketcher.Constraint("DistanceX", 5, 1, 5, 2, 34.0))
sketch6.addConstraint(Sketcher.Constraint("DistanceY", 0, 1, 0, 2, 12.0))
sketch6.addConstraint(Sketcher.Constraint("DistanceX", -1, 1, 0, 2, 168.0))
pocket1 = body.newObject("PartDesign::Pocket", "Pocket")
pocket1.Profile = sketch6
pocket1.Type = "ThroughAll"
pocket1.Midplane = True

sketch7 = body.newObject("Sketcher::SketchObject", "Sketch006")
sketch7.AttachmentSupport = (doc.getObject("XY_Plane"), [""])
sketch7.MapMode = "FlatFace"
sketch7.AttachmentOffset = App.Placement(App.Vector(0, 0, -6), App.Rotation())
sketch7.addGeometry(Part.Circle(App.Vector(177, 0, 0), App.Vector(0, 0, 1), 3), False)
sketch7.addConstraint(Sketcher.Constraint("PointOnObject", 0, 3, -1))
sketch7.addConstraint(Sketcher.Constraint("Diameter", 0, 6.0))
sketch7.addConstraint(Sketcher.Constraint("DistanceX", -1, 1, 0, 3, 177.0))
doc.recompute()
hole = body.newObject("PartDesign::Hole", "Hole")
hole.Profile = sketch7
hole.ThreadType = "None"
hole.Diameter = 6
hole.DepthType = "ThroughAll"
hole.Reversed = True

sketch8 = body.newObject("Sketcher::SketchObject", "Sketch007")
sketch8.AttachmentSupport = (doc.getObject("XZ_Plane"), [""])
sketch8.MapMode = "FlatFace"
sketch8.AttachmentOffset = App.Placement(App.Vector(0, 0, -10), App.Rotation())
sketch8.addGeometry(Part.Circle(App.Vector(23, 0, 0), App.Vector(0, 0, 1), 2.067), False)
sketch8.addConstraint(Sketcher.Constraint("PointOnObject", 0, 3, -1))
sketch8.addConstraint(Sketcher.Constraint("Diameter", 0, 4.134))
sketch8.addConstraint(Sketcher.Constraint("DistanceX", -1, 1, 0, 3, 23.0))
doc.recompute()
hole2 = body.newObject("PartDesign::Hole", "Hole001")
hole2.Profile = sketch8
hole2.ThreadType = "None"
hole2.Diameter = 4.134
hole2.DepthType = "Dimension"
hole2.Depth = 10
hole2.DrillPoint = "Flat"
hole2.HoleCutType = "Countersink"
hole2.HoleCutDiameter = 5
hole2.HoleCutCountersinkAngle = 90
hole2.Reversed = True

sketch9 = body.newObject("Sketcher::SketchObject", "Sketch008")
sketch9.AttachmentSupport = (doc.getObject("XZ_Plane"), [""])
sketch9.MapMode = "FlatFace"
sketch9.AttachmentOffset = App.Placement(App.Vector(0, 0, -10), App.Rotation())
sketch9.addGeometry(Part.Circle(App.Vector(167, 0, 0), App.Vector(0, 0, 1), 2.067), False)
sketch9.addConstraint(Sketcher.Constraint("PointOnObject", 0, 3, -1))
sketch9.addConstraint(Sketcher.Constraint("Diameter", 0, 4.134))
sketch9.addConstraint(Sketcher.Constraint("DistanceX", -1, 1, 0, 3, 167.0))
doc.recompute()
hole3 = body.newObject("PartDesign::Hole", "Hole002")
hole3.Profile = sketch9
hole3.ThreadType = "None"
hole3.Diameter = 4.134
hole3.DepthType = "Dimension"
hole3.Depth = 11
hole3.DrillPoint = "Angled"
hole3.DrillPointAngle = 120
hole3.HoleCutType = "Countersink"
hole3.HoleCutDiameter = 5
hole3.HoleCutCountersinkAngle = 90
hole3.Reversed = True

sketch10 = body.newObject("Sketcher::SketchObject", "Sketch009")
sketch10.AttachmentSupport = (doc.getObject("XY_Plane"), [""])
sketch10.MapMode = "FlatFace"
sketch10.addGeometry(Part.LineSegment(App.Vector(-5, 3, 0), App.Vector(-5, 0, 0)), False)
sketch10.addGeometry(Part.LineSegment(App.Vector(-5, 0, 0), App.Vector(145.2, 0, 0)), False)
sketch10.addGeometry(Part.LineSegment(App.Vector(145.2, 0, 0), App.Vector(145.2, 8, 0)), False)
sketch10.addGeometry(Part.LineSegment(App.Vector(145.2, 8, 0), App.Vector(41.2, 8, 0)), False)
sketch10.addGeometry(Part.LineSegment(App.Vector(41.2, 8, 0), App.Vector(41.2, 3, 0)), False)
sketch10.addGeometry(Part.LineSegment(App.Vector(41.2, 3, 0), App.Vector(-5, 3, 0)), False)
sketch10.addConstraint(Sketcher.Constraint("Coincident", 0, 2, 1, 1))
sketch10.addConstraint(Sketcher.Constraint("Coincident", 1, 2, 2, 1))
sketch10.addConstraint(Sketcher.Constraint("Coincident", 2, 2, 3, 1))
sketch10.addConstraint(Sketcher.Constraint("Coincident", 3, 2, 4, 1))
sketch10.addConstraint(Sketcher.Constraint("Coincident", 4, 2, 5, 1))
sketch10.addConstraint(Sketcher.Constraint("Coincident", 5, 2, 0, 1))
sketch10.addConstraint(Sketcher.Constraint("Vertical", 0))
sketch10.addConstraint(Sketcher.Constraint("Horizontal", 1))
sketch10.addConstraint(Sketcher.Constraint("Vertical", 2))
sketch10.addConstraint(Sketcher.Constraint("Horizontal", 3))
sketch10.addConstraint(Sketcher.Constraint("Vertical", 4))
sketch10.addConstraint(Sketcher.Constraint("Horizontal", 5))
sketch10.addConstraint(Sketcher.Constraint("PointOnObject", 0, 2, -1))
sketch10.addConstraint(Sketcher.Constraint("DistanceX", 3, 2, 3, 1, 104.0))
sketch10.addConstraint(Sketcher.Constraint("DistanceY", 0, 2, 0, 1, 3.0))
sketch10.addConstraint(Sketcher.Constraint("DistanceY", 2, 1, 2, 2, 8.0))
sketch10.addConstraint(Sketcher.Constraint("DistanceX", 1, 1, 1, 2, 150.2))
sketch10.addConstraint(Sketcher.Constraint("DistanceX", 0, 2, -1, 1, 5.0))
groove = body.newObject("PartDesign::Groove", "Groove")
groove.Profile = sketch10
groove.ReferenceAxis = (sketch10, ["H_Axis"])
groove.Angle = 360

doc.recompute()
